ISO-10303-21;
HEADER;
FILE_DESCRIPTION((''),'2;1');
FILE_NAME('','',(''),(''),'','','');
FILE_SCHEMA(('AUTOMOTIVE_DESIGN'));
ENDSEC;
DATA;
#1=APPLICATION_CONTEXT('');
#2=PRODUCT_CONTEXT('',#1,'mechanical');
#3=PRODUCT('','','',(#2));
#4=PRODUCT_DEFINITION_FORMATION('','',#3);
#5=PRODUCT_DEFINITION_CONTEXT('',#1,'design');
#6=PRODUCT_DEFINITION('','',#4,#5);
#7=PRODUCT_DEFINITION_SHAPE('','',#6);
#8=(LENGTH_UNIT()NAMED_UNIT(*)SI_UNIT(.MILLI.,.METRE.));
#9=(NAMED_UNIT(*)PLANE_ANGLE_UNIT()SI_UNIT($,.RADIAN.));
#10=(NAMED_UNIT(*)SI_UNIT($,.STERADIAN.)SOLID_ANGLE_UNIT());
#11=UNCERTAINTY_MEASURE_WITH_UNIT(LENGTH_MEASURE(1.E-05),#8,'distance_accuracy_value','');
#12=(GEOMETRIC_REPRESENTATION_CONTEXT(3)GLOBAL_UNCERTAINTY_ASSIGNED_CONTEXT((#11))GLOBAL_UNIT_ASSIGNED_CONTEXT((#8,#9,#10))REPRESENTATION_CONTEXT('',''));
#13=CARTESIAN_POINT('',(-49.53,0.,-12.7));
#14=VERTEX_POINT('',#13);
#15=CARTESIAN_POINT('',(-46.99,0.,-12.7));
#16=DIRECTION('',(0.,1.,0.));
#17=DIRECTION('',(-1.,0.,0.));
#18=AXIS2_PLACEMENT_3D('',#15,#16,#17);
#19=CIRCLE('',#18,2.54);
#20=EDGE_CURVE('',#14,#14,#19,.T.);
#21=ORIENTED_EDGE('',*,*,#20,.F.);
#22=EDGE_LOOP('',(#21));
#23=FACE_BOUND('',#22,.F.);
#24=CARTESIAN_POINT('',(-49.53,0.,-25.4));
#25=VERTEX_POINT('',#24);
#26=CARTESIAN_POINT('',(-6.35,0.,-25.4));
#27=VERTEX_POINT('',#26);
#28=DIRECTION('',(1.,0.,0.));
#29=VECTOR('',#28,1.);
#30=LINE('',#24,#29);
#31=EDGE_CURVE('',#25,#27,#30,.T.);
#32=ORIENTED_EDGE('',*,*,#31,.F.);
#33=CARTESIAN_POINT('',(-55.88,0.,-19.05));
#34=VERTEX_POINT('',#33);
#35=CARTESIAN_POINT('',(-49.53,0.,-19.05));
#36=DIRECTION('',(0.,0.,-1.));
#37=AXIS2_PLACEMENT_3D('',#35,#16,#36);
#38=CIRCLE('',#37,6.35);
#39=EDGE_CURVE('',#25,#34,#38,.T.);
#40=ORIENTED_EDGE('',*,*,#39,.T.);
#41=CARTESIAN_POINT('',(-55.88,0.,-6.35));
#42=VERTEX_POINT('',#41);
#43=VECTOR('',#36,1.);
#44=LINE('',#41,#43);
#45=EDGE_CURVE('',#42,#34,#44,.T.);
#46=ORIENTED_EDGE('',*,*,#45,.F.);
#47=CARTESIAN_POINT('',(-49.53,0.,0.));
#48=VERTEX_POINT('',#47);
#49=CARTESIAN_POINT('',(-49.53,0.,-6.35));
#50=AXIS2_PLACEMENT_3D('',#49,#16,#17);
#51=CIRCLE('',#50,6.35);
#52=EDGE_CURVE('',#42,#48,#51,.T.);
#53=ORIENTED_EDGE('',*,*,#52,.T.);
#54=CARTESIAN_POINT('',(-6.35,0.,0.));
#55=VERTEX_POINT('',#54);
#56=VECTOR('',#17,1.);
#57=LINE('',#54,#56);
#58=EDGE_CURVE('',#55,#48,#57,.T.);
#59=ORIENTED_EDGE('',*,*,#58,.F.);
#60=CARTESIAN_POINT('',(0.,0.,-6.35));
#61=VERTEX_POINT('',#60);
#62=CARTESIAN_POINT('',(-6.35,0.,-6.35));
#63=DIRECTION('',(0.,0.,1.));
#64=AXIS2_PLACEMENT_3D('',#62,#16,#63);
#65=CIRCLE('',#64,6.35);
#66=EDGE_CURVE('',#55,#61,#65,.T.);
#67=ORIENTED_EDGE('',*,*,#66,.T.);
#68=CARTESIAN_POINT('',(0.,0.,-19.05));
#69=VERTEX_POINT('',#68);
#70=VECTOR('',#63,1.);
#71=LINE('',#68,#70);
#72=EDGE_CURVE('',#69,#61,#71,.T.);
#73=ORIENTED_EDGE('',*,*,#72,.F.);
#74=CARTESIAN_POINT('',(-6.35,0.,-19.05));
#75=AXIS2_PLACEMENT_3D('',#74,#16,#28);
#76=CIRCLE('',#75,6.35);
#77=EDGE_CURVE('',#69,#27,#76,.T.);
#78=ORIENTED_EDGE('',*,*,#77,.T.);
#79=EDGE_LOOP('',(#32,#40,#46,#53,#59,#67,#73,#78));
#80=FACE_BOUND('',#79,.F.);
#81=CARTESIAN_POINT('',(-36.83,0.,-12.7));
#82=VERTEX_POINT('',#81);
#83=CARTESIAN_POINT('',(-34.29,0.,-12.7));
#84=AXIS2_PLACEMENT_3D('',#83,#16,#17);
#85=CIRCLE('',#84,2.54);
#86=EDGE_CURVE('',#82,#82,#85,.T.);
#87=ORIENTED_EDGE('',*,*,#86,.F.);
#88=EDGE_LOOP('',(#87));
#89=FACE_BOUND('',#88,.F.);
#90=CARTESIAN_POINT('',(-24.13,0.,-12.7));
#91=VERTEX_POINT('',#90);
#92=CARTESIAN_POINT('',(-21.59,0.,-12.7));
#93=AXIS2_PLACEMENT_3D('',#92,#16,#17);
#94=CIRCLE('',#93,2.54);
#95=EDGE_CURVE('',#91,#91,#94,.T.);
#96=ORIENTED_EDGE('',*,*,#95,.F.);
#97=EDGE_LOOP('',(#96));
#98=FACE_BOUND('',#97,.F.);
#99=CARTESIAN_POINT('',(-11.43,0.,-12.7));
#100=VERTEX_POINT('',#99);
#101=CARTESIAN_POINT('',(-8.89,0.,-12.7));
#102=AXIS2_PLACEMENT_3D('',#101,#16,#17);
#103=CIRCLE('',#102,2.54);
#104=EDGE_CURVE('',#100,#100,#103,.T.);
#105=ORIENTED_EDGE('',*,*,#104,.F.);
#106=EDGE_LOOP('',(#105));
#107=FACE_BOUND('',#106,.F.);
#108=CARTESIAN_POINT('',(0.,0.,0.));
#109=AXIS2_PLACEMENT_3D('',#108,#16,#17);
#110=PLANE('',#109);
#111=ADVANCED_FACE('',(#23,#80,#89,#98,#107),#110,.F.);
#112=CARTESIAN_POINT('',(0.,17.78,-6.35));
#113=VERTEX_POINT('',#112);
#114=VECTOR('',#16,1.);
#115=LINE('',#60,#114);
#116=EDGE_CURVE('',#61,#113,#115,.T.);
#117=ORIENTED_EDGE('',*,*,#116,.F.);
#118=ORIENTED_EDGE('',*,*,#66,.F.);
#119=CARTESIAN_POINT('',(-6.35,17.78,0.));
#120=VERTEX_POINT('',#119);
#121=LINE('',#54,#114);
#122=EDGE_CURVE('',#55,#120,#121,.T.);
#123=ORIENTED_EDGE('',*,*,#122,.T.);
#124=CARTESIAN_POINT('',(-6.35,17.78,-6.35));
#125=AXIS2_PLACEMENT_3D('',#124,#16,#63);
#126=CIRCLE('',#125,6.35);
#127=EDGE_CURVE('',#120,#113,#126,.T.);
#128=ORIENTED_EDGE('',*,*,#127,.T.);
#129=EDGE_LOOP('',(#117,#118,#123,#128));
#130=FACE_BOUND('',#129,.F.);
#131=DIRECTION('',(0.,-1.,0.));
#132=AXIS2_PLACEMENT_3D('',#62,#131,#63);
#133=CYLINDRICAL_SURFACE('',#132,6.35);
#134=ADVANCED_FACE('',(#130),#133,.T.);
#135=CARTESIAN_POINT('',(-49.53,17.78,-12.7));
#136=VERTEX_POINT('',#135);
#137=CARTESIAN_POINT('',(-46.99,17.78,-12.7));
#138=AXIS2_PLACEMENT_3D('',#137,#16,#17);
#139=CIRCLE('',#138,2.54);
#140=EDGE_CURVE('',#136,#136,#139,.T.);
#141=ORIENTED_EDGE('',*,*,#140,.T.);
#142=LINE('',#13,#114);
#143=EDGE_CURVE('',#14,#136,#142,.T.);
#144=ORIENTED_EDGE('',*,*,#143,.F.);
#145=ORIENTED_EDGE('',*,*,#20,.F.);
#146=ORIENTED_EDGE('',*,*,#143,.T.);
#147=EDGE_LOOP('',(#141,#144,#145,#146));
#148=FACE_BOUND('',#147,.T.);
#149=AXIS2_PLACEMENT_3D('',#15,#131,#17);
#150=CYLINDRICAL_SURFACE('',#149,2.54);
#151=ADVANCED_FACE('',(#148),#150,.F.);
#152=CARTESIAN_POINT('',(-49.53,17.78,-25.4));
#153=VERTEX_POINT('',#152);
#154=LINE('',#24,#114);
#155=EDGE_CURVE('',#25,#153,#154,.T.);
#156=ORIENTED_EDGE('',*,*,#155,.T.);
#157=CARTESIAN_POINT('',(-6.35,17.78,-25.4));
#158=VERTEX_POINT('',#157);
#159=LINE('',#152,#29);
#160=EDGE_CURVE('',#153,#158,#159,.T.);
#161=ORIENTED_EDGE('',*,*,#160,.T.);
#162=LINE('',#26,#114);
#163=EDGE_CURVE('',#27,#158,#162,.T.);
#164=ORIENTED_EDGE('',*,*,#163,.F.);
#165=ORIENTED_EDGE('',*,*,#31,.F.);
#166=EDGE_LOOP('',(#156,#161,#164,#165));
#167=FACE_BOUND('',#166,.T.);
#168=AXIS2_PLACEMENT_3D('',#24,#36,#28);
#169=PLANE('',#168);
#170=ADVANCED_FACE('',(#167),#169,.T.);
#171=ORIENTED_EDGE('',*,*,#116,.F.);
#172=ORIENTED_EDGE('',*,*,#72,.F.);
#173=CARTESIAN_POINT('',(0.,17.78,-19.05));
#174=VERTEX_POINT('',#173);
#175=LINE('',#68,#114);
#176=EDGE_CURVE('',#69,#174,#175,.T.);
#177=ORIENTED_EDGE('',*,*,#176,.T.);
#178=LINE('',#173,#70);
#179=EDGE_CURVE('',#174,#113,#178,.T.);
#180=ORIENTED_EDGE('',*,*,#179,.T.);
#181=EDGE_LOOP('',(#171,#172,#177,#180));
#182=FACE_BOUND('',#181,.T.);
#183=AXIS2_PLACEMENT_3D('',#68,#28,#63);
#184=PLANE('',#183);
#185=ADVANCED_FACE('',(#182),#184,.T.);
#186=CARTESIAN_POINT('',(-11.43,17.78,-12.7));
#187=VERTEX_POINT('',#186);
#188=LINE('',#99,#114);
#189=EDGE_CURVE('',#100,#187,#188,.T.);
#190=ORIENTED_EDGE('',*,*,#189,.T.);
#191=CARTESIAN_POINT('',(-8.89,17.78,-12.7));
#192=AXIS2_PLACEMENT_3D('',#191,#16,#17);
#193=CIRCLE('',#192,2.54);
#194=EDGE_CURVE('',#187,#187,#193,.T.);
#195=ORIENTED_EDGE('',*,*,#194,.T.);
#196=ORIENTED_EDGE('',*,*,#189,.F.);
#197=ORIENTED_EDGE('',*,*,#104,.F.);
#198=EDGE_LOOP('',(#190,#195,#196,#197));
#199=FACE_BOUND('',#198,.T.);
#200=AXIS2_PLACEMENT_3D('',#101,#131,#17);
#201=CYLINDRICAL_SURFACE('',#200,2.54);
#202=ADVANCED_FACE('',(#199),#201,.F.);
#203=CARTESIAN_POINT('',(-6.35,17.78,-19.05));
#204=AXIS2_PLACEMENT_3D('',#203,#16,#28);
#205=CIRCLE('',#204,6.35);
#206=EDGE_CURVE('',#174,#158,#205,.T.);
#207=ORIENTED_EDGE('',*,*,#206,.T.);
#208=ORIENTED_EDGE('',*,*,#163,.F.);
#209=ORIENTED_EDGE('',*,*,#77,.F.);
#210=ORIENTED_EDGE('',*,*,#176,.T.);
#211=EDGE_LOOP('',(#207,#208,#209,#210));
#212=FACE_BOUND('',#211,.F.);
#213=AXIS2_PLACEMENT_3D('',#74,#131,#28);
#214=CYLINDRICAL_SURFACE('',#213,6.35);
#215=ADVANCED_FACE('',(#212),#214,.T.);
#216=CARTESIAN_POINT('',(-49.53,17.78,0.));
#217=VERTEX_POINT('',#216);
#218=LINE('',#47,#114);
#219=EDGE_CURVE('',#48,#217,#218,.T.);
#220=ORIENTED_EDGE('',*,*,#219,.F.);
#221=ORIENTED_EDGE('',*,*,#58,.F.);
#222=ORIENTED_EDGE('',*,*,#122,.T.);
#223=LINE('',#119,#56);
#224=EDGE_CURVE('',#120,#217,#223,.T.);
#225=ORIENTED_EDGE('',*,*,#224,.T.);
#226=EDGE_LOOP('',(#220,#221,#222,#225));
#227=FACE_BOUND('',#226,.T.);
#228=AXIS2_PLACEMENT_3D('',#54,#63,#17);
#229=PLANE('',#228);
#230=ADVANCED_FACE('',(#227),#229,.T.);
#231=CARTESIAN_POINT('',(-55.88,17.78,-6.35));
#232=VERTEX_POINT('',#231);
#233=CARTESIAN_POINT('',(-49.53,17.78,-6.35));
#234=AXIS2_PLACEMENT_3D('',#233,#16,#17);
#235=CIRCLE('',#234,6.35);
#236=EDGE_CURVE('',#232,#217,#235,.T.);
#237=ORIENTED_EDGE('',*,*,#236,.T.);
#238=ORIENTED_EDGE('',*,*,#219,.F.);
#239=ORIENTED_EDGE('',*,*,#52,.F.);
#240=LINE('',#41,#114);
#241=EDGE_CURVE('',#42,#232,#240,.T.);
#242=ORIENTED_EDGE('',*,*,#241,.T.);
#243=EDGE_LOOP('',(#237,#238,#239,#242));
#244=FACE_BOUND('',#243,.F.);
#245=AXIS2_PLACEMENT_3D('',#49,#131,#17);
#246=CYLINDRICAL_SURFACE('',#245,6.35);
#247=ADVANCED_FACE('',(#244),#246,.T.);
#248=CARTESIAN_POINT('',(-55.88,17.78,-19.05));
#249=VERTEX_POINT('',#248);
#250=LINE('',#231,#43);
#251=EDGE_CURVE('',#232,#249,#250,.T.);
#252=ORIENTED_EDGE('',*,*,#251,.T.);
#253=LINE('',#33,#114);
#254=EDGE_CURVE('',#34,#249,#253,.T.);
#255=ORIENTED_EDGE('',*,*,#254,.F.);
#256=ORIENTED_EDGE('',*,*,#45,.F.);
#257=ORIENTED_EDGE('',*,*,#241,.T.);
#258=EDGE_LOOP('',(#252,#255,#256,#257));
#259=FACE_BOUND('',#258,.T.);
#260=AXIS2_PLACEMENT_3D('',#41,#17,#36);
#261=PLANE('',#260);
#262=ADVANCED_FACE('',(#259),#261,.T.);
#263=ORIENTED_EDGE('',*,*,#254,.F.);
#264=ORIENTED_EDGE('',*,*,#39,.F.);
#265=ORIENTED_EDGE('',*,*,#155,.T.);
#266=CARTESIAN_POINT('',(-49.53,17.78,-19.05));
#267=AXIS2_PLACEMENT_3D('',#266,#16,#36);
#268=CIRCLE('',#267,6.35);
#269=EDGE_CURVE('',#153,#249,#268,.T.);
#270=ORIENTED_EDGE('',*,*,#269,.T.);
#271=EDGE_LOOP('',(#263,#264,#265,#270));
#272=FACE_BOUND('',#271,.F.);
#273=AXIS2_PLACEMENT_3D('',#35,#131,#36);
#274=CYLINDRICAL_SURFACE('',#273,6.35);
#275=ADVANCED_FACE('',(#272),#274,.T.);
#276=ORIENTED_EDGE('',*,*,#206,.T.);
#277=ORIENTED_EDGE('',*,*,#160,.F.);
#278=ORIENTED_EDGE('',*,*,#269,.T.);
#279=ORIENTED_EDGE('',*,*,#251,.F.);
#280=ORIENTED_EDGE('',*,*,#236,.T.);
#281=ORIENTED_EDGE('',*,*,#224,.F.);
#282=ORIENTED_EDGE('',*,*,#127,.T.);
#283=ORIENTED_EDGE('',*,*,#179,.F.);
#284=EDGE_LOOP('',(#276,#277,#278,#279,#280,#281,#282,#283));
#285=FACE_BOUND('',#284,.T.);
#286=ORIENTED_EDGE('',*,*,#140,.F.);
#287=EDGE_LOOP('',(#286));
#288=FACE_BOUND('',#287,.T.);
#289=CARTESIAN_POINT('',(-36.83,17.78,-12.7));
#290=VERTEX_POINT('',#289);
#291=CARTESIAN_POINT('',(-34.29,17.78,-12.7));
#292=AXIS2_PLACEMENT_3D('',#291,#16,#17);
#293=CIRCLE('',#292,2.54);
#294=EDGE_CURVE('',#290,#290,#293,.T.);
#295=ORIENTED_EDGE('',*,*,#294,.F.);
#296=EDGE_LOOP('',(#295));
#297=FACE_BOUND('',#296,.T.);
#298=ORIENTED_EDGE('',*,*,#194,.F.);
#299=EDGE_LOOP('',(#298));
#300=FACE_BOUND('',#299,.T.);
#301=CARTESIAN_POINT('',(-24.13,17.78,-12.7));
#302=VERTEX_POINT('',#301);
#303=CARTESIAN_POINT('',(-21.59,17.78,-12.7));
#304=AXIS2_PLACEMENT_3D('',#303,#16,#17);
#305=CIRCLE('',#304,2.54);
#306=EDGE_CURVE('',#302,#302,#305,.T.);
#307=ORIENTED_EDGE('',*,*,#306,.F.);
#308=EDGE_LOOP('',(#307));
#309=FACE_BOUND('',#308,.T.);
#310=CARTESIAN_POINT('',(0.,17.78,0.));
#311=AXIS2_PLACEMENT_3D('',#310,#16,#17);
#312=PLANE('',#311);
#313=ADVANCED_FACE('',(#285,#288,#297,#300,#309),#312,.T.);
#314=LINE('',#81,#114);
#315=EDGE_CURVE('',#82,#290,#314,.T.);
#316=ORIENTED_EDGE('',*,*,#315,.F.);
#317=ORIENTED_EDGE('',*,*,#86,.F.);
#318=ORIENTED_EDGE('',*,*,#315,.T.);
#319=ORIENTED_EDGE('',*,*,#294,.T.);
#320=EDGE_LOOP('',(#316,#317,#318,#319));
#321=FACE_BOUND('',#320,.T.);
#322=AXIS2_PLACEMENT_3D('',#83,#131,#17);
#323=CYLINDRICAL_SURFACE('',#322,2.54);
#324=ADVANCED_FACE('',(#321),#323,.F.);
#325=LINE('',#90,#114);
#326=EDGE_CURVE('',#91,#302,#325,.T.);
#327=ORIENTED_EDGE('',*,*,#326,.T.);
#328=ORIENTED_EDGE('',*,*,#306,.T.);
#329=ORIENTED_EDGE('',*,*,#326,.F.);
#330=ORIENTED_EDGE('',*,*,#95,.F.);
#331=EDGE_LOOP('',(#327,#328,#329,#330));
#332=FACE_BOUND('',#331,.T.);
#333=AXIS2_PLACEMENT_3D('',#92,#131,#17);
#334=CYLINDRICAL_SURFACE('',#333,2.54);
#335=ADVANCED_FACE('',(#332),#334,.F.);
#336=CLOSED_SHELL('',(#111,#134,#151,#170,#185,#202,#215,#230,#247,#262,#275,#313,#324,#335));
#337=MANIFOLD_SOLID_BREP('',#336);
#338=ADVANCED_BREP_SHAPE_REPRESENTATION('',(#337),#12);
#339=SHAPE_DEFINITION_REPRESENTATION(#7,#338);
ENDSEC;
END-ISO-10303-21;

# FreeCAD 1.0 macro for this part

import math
import FreeCAD as App
import Part
import Sketcher

V = App.Vector
Q = App.Units.Quantity

doc = App.newDocument("Part")
params = doc.addObject("Spreadsheet::Sheet", "Params")
for row, (alias, value) in enumerate([
    ("sketch1_diameter", "0.2 in"),
    ("sketch1_radius", "0.25 in"),
    ("sketch1_height", "0.5 in"),
    ("pad1_length", "0.7 in"),
], start=1):
    params.set(f"A{row}", alias)
    params.set(f"B{row}", "=" + value)
    params.setAlias(f"B{row}", alias)

body = doc.addObject("PartDesign::Body", "Body")

sketch1 = body.newObject("Sketcher::SketchObject", "Sketch")
sketch1.AttachmentSupport = (doc.getObject("XZ_Plane"), [""])
sketch1.MapMode = "FlatFace"
sketch1.addGeometry([
    Part.LineSegment(V(-49.5, 0, 0), V(-6.3, 0, 0)),
    Part.ArcOfCircle(Part.Circle(V(-6.3, -6.3, 0), V(0, 0, 1), 6.3), math.radians(0), math.radians(90)),
    Part.LineSegment(V(0, -6.3, 0), V(0, -19.1, 0)),
    Part.ArcOfCircle(Part.Circle(V(-6.3, -19.1, 0), V(0, 0, 1), 6.3), math.radians(-90), math.radians(0)),
    Part.LineSegment(V(-6.3, -25.4, 0), V(-49.5, -25.4, 0)),
    Part.ArcOfCircle(Part.Circle(V(-49.5, -19.1, 0), V(0, 0, 1), 6.3), math.radians(180), math.radians(270)),
    Part.LineSegment(V(-55.9, -19.1, 0), V(-55.9, -6.3, 0)),
    Part.ArcOfCircle(Part.Circle(V(-49.5, -6.3, 0), V(0, 0, 1), 6.4), math.radians(90), math.radians(180)),
    Part.Circle(V(-8.9, -12.7, 0), V(0, 0, 1), 2.5),
    Part.Circle(V(-21.6, -12.7, 0), V(0, 0, 1), 2.5),
    Part.Circle(V(-34.3, -12.7, 0), V(0, 0, 1), 2.5),
    Part.Circle(V(-47, -12.7, 0), V(0, 0, 1), 2.5),
], False)
sketch1.addConstraint([
    Sketcher.Constraint("Tangent", 0, 2, 1, 2),
    Sketcher.Constraint("Tangent", 1, 1, 2, 1),
    Sketcher.Constraint("Tangent", 2, 2, 3, 2),
    Sketcher.Constraint("Tangent", 3, 1, 4, 1),
    Sketcher.Constraint("Tangent", 4, 2, 5, 2),
    Sketcher.Constraint("Tangent", 5, 1, 6, 1),
    Sketcher.Constraint("Tangent", 6, 2, 7, 2),
    Sketcher.Constraint("Tangent", 7, 1, 0, 1),
    Sketcher.Constraint("Horizontal", 0),
    Sketcher.Constraint("Vertical", 2),
    Sketcher.Constraint("Horizontal", 4),
    Sketcher.Constraint("Vertical", 6),
    Sketcher.Constraint("Equal", 1, 3),
    Sketcher.Constraint("Equal", 3, 5),
    Sketcher.Constraint("Equal", 5, 7),
    Sketcher.Constraint("Equal", 8, 9),
    Sketcher.Constraint("Equal", 9, 10),
    Sketcher.Constraint("Equal", 10, 11),
    Sketcher.Constraint("PointOnObject", 0, 2, -1),
    Sketcher.Constraint("PointOnObject", 1, 1, -2),
    Sketcher.Constraint("Horizontal", 8, 3, 9, 3),
    Sketcher.Constraint("Horizontal", 9, 3, 10, 3),
    Sketcher.Constraint("Horizontal", 10, 3, 11, 3),
    Sketcher.Constraint("Diameter", 8, Q("0.2 in")),
    Sketcher.Constraint("Radius", 1, Q("0.25 in")),
    Sketcher.Constraint("DistanceY", 2, 2, 2, 1, Q("0.5 in")),
    Sketcher.Constraint("DistanceX", 10, 3, 8, 3, Q("1 in")),
    Sketcher.Constraint("DistanceX", 11, 3, 9, 3, Q("1 in")),
    Sketcher.Constraint("DistanceY", 8, 3, -1, 1, Q("0.5 in")),
    Sketcher.Constraint("DistanceX", 5, 1, -1, 1, Q("2.2 in")),
    Sketcher.Constraint("DistanceX", 9, 3, 8, 3, Q("0.5 in")),
    Sketcher.Constraint("DistanceX", 8, 3, -1, 1, Q("0.35 in")),
])
sketch1.setExpression("Constraints[23]", "Params.sketch1_diameter")
sketch1.setExpression("Constraints[24]", "Params.sketch1_radius")
sketch1.setExpression("Constraints[25]", "Params.sketch1_height")
pad1 = body.newObject("PartDesign::Pad", "Pad")
pad1.Profile = sketch1
pad1.setExpression("Length", "Params.pad1_length")
pad1.Reversed = True

doc.recompute()
